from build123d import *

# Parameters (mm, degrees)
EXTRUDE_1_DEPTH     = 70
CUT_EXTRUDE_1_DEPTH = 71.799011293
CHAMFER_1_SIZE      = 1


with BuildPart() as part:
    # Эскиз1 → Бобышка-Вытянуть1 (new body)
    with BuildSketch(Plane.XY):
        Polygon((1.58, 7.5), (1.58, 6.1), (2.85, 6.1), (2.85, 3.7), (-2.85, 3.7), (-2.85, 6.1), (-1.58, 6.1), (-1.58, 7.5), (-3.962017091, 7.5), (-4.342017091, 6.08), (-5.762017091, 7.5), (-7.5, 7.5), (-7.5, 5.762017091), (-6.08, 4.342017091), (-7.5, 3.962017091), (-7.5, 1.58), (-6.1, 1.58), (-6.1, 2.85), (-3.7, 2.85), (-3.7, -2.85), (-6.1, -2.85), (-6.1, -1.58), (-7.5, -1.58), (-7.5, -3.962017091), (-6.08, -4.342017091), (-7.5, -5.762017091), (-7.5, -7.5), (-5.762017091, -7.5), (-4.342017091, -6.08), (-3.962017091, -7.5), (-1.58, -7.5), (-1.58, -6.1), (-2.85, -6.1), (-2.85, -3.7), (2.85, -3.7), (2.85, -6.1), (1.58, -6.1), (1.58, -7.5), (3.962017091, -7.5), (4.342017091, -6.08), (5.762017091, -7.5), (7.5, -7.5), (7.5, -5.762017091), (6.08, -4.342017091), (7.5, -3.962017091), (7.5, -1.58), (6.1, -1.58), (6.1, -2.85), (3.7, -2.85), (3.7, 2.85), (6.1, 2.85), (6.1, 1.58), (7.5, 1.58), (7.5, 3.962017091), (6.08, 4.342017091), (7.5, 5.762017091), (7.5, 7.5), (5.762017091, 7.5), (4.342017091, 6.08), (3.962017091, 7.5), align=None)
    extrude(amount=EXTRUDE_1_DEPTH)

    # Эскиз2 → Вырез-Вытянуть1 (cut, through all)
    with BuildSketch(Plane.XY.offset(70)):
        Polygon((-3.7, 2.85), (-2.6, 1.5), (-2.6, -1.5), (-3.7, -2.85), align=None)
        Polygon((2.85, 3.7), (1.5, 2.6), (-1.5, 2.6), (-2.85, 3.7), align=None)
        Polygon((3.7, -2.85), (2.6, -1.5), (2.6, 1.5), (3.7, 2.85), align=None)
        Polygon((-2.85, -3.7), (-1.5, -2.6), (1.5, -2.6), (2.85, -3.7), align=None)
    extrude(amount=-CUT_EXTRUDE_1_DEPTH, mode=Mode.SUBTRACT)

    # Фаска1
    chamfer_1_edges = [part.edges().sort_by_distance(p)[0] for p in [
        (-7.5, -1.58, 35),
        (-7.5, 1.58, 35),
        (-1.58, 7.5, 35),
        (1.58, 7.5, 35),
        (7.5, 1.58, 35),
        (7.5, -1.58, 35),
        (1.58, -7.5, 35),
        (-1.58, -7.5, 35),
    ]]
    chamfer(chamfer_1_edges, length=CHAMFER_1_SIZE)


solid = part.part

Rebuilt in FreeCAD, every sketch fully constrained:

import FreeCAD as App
import Part
import Sketcher
from FreeCAD import Vector
Q = App.Units.Quantity


def edges_at(feature, points):
    """Names of the edges that pass closest to the given points."""
    edges = feature.Shape.Edges
    near = lambda p: min(range(len(edges)), key=lambda i: edges[i].distToShape(Part.Vertex(*p))[0])
    return sorted({f"Edge{near(p) + 1}" for p in points})


def add_polygon(sketch, points):
    """Adds a closed chain of lines whose ends are joined by coincident constraints."""
    first, n = sketch.GeometryCount, len(points)
    for a, b in zip(points, points[1:] + points[:1]):
        sketch.addGeometry(Part.LineSegment(App.Vector(*a, 0), App.Vector(*b, 0)), False)
    for i in range(n):
        sketch.addConstraint(Sketcher.Constraint("Coincident", first + i, 2, first + (i + 1) % n, 1))

doc = App.newDocument("Part")
body = doc.addObject("PartDesign::Body", "Body")

sketch1 = body.newObject("Sketcher::SketchObject", "Sketch")
sketch1.AttachmentSupport = (doc.getObject("XY_Plane"), [""])
sketch1.MapMode = "FlatFace"
add_polygon(sketch1, [(1.58, 7.5), (1.58, 6.1), (2.85, 6.1), (2.85, 3.7), (-2.85, 3.7), (-2.85, 6.1), (-1.58, 6.1), (-1.58, 7.5), (-3.962017, 7.5), (-4.342017, 6.08), (-5.762017, 7.5), (-7.5, 7.5), (-7.5, 5.762017), (-6.08, 4.342017), (-7.5, 3.962017), (-7.5, 1.58), (-6.1, 1.58), (-6.1, 2.85), (-3.7, 2.85), (-3.7, -2.85), (-6.1, -2.85), (-6.1, -1.58), (-7.5, -1.58), (-7.5, -3.962017), (-6.08, -4.342017), (-7.5, -5.762017), (-7.5, -7.5), (-5.762017, -7.5), (-4.342017, -6.08), (-3.962017, -7.5), (-1.58, -7.5), (-1.58, -6.1), (-2.85, -6.1), (-2.85, -3.7), (2.85, -3.7), (2.85, -6.1), (1.58, -6.1), (1.58, -7.5), (3.962017, -7.5), (4.342017, -6.08), (5.762017, -7.5), (7.5, -7.5), (7.5, -5.762017), (6.08, -4.342017), (7.5, -3.962017), (7.5, -1.58), (6.1, -1.58), (6.1, -2.85), (3.7, -2.85), (3.7, 2.85), (6.1, 2.85), (6.1, 1.58), (7.5, 1.58), (7.5, 3.962017), (6.08, 4.342017), (7.5, 5.762017), (7.5, 7.5), (5.762017, 7.5), (4.342017, 6.08), (3.962017, 7.5)])
sketch1.addConstraint(Sketcher.Constraint("Vertical", 0))
sketch1.addConstraint(Sketcher.Constraint("Horizontal", 1))
sketch1.addConstraint(Sketcher.Constraint("Vertical", 2))
sketch1.addConstraint(Sketcher.Constraint("Horizontal", 3))
sketch1.addConstraint(Sketcher.Constraint("Vertical", 4))
sketch1.addConstraint(Sketcher.Constraint("Horizontal", 5))
sketch1.addConstraint(Sketcher.Constraint("Vertical", 6))
sketch1.addConstraint(Sketcher.Constraint("Horizontal", 7))
sketch1.addConstraint(Sketcher.Constraint("Horizontal", 10))
sketch1.addConstraint(Sketcher.Constraint("Vertical", 11))
sketch1.addConstraint(Sketcher.Constraint("Vertical", 14))
sketch1.addConstraint(Sketcher.Constraint("Horizontal", 15))
sketch1.addConstraint(Sketcher.Constraint("Vertical", 16))
sketch1.addConstraint(Sketcher.Constraint("Horizontal", 17))
sketch1.addConstraint(Sketcher.Constraint("Vertical", 18))
sketch1.addConstraint(Sketcher.Constraint("Horizontal", 19))
sketch1.addConstraint(Sketcher.Constraint("Vertical", 20))
sketch1.addConstraint(Sketcher.Constraint("Horizontal", 21))
sketch1.addConstraint(Sketcher.Constraint("Vertical", 22))
sketch1.addConstraint(Sketcher.Constraint("Vertical", 25))
sketch1.addConstraint(Sketcher.Constraint("Horizontal", 26))
sketch1.addConstraint(Sketcher.Constraint("Horizontal", 29))
sketch1.addConstraint(Sketcher.Constraint("Vertical", 30))
sketch1.addConstraint(Sketcher.Constraint("Horizontal", 31))
sketch1.addConstraint(Sketcher.Constraint("Vertical", 32))
sketch1.addConstraint(Sketcher.Constraint("Horizontal", 33))
sketch1.addConstraint(Sketcher.Constraint("Vertical", 34))
sketch1.addConstraint(Sketcher.Constraint("Horizontal", 35))
sketch1.addConstraint(Sketcher.Constraint("Vertical", 36))
sketch1.addConstraint(Sketcher.Constraint("Horizontal", 37))
sketch1.addConstraint(Sketcher.Constraint("Horizontal", 40))
sketch1.addConstraint(Sketcher.Constraint("Vertical", 41))
sketch1.addConstraint(Sketcher.Constraint("Vertical", 44))
sketch1.addConstraint(Sketcher.Constraint("Horizontal", 45))
sketch1.addConstraint(Sketcher.Constraint("Vertical", 46))
sketch1.addConstraint(Sketcher.Constraint("Horizontal", 47))
sketch1.addConstraint(Sketcher.Constraint("Vertical", 48))
sketch1.addConstraint(Sketcher.Constraint("Horizontal", 49))
sketch1.addConstraint(Sketcher.Constraint("Vertical", 50))
sketch1.addConstraint(Sketcher.Constraint("Horizontal", 51))
sketch1.addConstraint(Sketcher.Constraint("Vertical", 52))
sketch1.addConstraint(Sketcher.Constraint("Vertical", 55))
sketch1.addConstraint(Sketcher.Constraint("Horizontal", 56))
sketch1.addConstraint(Sketcher.Constraint("Horizontal", 59))
sketch1.addConstraint(Sketcher.Constraint("Symmetric", 0, 2, 30, 2, -1, 1))
sketch1.addConstraint(Sketcher.Constraint("Symmetric", 2, 2, 32, 2, -1, 1))
sketch1.addConstraint(Sketcher.Constraint("Symmetric", 4, 2, 34, 2, -1, 1))
sketch1.addConstraint(Sketcher.Constraint("Symmetric", 6, 2, 36, 2, -1, 1))
sketch1.addConstraint(Sketcher.Constraint("Symmetric", 8, 2, 38, 2, -1, 1))
sketch1.addConstraint(Sketcher.Constraint("Symmetric", 9, 2, 39, 2, -1, 1))
sketch1.addConstraint(Sketcher.Constraint("Symmetric", 11, 2, 41, 2, -1, 1))
sketch1.addConstraint(Sketcher.Constraint("Symmetric", 12, 2, 42, 2, -1, 1))
sketch1.addConstraint(Sketcher.Constraint("Symmetric", 13, 2, 43, 2, -1, 1))
sketch1.addConstraint(Sketcher.Constraint("Symmetric", 15, 2, 45, 2, -1, 1))
sketch1.addConstraint(Sketcher.Constraint("Symmetric", 17, 2, 47, 2, -1, 1))
sketch1.addConstraint(Sketcher.Constraint("Symmetric", 19, 2, 49, 2, -1, 1))
sketch1.addConstraint(Sketcher.Constraint("Symmetric", 21, 2, 51, 2, -1, 1))
sketch1.addConstraint(Sketcher.Constraint("Symmetric", 23, 2, 53, 2, -1, 1))
sketch1.addConstraint(Sketcher.Constraint("Symmetric", 24, 2, 54, 2, -1, 1))
sketch1.addConstraint(Sketcher.Constraint("Symmetric", 26, 2, 56, 2, -1, 1))
sketch1.addConstraint(Sketcher.Constraint("Symmetric", 27, 2, 57, 2, -1, 1))
sketch1.addConstraint(Sketcher.Constraint("Symmetric", 28, 2, 58, 2, -1, 1))
sketch1.addConstraint(Sketcher.Constraint("Symmetric", 1, 2, 4, 2, -2))
sketch1.addConstraint(Sketcher.Constraint("Symmetric", 29, 2, 36, 2, -2))
sketch1.addConstraint(Sketcher.Constraint("Symmetric", 27, 2, 38, 2, -2))
sketch1.addConstraint(Sketcher.Constraint("Symmetric", 26, 2, 39, 2, -2))
sketch1.addConstraint(Sketcher.Constraint("Symmetric", 24, 2, 41, 2, -2))
sketch1.addConstraint(Sketcher.Constraint("Symmetric", 23, 2, 42, 2, -2))
sketch1.addConstraint(Sketcher.Constraint("Symmetric", 22, 2, 43, 2, -2))
sketch1.addConstraint(Sketcher.Constraint("Symmetric", 20, 2, 45, 2, -2))
sketch1.addConstraint(Sketcher.Constraint("Parallel", 9, 12))
sketch1.addConstraint(Sketcher.Constraint("Perpendicular", 8, 23))
sketch1.addConstraint(Sketcher.Constraint("Perpendicular", 12, 24))
sketch1.addConstraint(Sketcher.Constraint("Perpendicular", 13, 28))
sketch1.addConstraint(Sketcher.Constraint("Perpendicular", 23, 38))
sketch1.addConstraint(Sketcher.Constraint("Perpendicular", 38, 53))
sketch1.addConstraint(Sketcher.Constraint("Horizontal", 7, 2, 9, 2))
sketch1.addConstraint(Sketcher.Constraint("Horizontal", 19, 2, 46, 2))
sketch1.addConstraint(Sketcher.Constraint("Vertical", 11, 2, 13, 2))
sketch1.addConstraint(Sketcher.Constraint("Equal", 51, 0))
sketch1.addConstraint(Sketcher.Constraint("Equal", 49, 2))
sketch1.addConstraint(Sketcher.Constraint("Equal", 56, 11))
sketch1.addConstraint(Sketcher.Constraint("Equal", 59, 14))
sketch1.addConstraint(Sketcher.Constraint("Equal", 35, 16))
sketch1.addConstraint(Sketcher.Constraint("Equal", 33, 18))
sketch1.addConstraint(Sketcher.Constraint("Equal", 9, 12))
sketch1.addConstraint(Sketcher.Constraint("DistanceX", 3, 2, 3, 1, Q("5.7 mm")))
sketch1.addConstraint(Sketcher.Constraint("DistanceX", 15, 1, 15, 2, Q("1.4 mm")))
sketch1.addConstraint(Sketcher.Constraint("DistanceX", 17, 1, 17, 2, Q("2.4 mm")))
sketch1.addConstraint(Sketcher.Constraint("DistanceX", 1, 1, 1, 2, Q("1.27 mm")))
sketch1.addConstraint(Sketcher.Constraint("DistanceY", -1, 1, 0, 2, Q("6.1 mm")))
sketch1.addConstraint(Sketcher.Constraint("DistanceX", 9, 2, 7, 2, Q("1.8 mm")))
sketch1.addConstraint(Sketcher.Constraint("DistanceY", 14, 2, 8, 2, Q("4.5 mm")))
sketch1.addConstraint(Sketcher.Constraint("DistanceX", 7, 2, 7, 1, Q("2.382017 mm")))
pad1 = body.newObject("PartDesign::Pad", "Pad")
pad1.Profile = sketch1
pad1.Length = 70

sketch2 = body.newObject("Sketcher::SketchObject", "Sketch001")
sketch2.AttachmentSupport = (doc.getObject("XY_Plane"), [""])
sketch2.MapMode = "FlatFace"
sketch2.AttachmentOffset = App.Placement(Vector(0, 0, 70), App.Rotation())
add_polygon(sketch2, [(-2.6, 1.5), (-3.7, 2.85), (-3.7, -2.85), (-2.6, -1.5)])
add_polygon(sketch2, [(1.5, 2.6), (2.85, 3.7), (-2.85, 3.7), (-1.5, 2.6)])
add_polygon(sketch2, [(2.6, -1.5), (3.7, -2.85), (3.7, 2.85), (2.6, 1.5)])
add_polygon(sketch2, [(-1.5, -2.6), (-2.85, -3.7), (2.85, -3.7), (1.5, -2.6)])
sketch2.addConstraint(Sketcher.Constraint("Vertical", 1))
sketch2.addConstraint(Sketcher.Constraint("Vertical", 3))
sketch2.addConstraint(Sketcher.Constraint("Horizontal", 5))
sketch2.addConstraint(Sketcher.Constraint("Horizontal", 7))
sketch2.addConstraint(Sketcher.Constraint("Vertical", 9))
sketch2.addConstraint(Sketcher.Constraint("Vertical", 11))
sketch2.addConstraint(Sketcher.Constraint("Horizontal", 13))
sketch2.addConstraint(Sketcher.Constraint("Horizontal", 15))
sketch2.addConstraint(Sketcher.Constraint("Symmetric", 0, 2, 8, 2, -1, 1))
sketch2.addConstraint(Sketcher.Constraint("Symmetric", 2, 2, 10, 2, -1, 1))
sketch2.addConstraint(Sketcher.Constraint("Symmetric", 4, 2, 12, 2, -1, 1))
sketch2.addConstraint(Sketcher.Constraint("Symmetric", 6, 2, 14, 2, -1, 1))
sketch2.addConstraint(Sketcher.Constraint("Perpendicular", 0, 4))
sketch2.addConstraint(Sketcher.Constraint("Perpendicular", 2, 6))
sketch2.addConstraint(Sketcher.Constraint("Perpendicular", 4, 8))
sketch2.addConstraint(Sketcher.Constraint("Perpendicular", 6, 10))
sketch2.addConstraint(Sketcher.Constraint("Perpendicular", 8, 12))
sketch2.addConstraint(Sketcher.Constraint("Perpendicular", 10, 14))
sketch2.addConstraint(Sketcher.Constraint("Horizontal", 1, 2, 8, 2))
sketch2.addConstraint(Sketcher.Constraint("Horizontal", 3, 2, 10, 2))
sketch2.addConstraint(Sketcher.Constraint("Vertical", 5, 2, 12, 2))
sketch2.addConstraint(Sketcher.Constraint("Equal", 13, 1))
sketch2.addConstraint(Sketcher.Constraint("Equal", 15, 3))
sketch2.addConstraint(Sketcher.Constraint("DistanceX", 7, 1, 7, 2, Q("3 mm")))
sketch2.addConstraint(Sketcher.Constraint("DistanceX", 5, 2, 5, 1, Q("5.7 mm")))
sketch2.addConstraint(Sketcher.Constraint("DistanceX", 0, 2, -1, 1, Q("3.7 mm")))
sketch2.addConstraint(Sketcher.Constraint("DistanceX", 2, 2, -1, 1, Q("2.6 mm")))
sketch2.addConstraint(Sketcher.Constraint("DistanceY", -1, 1, 4, 2, Q("3.7 mm")))
pocket1 = body.newObject("PartDesign::Pocket", "Pocket")
pocket1.Profile = sketch2
pocket1.Type = "ThroughAll"
doc.recompute()

chamfer = body.newObject("PartDesign::Chamfer", "Chamfer")
chamfer.Base = (pocket1, edges_at(pocket1, [
    (-7.5, -1.58, 35),
    (-7.5, 1.58, 35),
    (-1.58, 7.5, 35),
    (1.58, 7.5, 35),
    (7.5, 1.58, 35),
    (7.5, -1.58, 35),
    (1.58, -7.5, 35),
    (-1.58, -7.5, 35),
]))
chamfer.Size = 1

doc.recompute()
